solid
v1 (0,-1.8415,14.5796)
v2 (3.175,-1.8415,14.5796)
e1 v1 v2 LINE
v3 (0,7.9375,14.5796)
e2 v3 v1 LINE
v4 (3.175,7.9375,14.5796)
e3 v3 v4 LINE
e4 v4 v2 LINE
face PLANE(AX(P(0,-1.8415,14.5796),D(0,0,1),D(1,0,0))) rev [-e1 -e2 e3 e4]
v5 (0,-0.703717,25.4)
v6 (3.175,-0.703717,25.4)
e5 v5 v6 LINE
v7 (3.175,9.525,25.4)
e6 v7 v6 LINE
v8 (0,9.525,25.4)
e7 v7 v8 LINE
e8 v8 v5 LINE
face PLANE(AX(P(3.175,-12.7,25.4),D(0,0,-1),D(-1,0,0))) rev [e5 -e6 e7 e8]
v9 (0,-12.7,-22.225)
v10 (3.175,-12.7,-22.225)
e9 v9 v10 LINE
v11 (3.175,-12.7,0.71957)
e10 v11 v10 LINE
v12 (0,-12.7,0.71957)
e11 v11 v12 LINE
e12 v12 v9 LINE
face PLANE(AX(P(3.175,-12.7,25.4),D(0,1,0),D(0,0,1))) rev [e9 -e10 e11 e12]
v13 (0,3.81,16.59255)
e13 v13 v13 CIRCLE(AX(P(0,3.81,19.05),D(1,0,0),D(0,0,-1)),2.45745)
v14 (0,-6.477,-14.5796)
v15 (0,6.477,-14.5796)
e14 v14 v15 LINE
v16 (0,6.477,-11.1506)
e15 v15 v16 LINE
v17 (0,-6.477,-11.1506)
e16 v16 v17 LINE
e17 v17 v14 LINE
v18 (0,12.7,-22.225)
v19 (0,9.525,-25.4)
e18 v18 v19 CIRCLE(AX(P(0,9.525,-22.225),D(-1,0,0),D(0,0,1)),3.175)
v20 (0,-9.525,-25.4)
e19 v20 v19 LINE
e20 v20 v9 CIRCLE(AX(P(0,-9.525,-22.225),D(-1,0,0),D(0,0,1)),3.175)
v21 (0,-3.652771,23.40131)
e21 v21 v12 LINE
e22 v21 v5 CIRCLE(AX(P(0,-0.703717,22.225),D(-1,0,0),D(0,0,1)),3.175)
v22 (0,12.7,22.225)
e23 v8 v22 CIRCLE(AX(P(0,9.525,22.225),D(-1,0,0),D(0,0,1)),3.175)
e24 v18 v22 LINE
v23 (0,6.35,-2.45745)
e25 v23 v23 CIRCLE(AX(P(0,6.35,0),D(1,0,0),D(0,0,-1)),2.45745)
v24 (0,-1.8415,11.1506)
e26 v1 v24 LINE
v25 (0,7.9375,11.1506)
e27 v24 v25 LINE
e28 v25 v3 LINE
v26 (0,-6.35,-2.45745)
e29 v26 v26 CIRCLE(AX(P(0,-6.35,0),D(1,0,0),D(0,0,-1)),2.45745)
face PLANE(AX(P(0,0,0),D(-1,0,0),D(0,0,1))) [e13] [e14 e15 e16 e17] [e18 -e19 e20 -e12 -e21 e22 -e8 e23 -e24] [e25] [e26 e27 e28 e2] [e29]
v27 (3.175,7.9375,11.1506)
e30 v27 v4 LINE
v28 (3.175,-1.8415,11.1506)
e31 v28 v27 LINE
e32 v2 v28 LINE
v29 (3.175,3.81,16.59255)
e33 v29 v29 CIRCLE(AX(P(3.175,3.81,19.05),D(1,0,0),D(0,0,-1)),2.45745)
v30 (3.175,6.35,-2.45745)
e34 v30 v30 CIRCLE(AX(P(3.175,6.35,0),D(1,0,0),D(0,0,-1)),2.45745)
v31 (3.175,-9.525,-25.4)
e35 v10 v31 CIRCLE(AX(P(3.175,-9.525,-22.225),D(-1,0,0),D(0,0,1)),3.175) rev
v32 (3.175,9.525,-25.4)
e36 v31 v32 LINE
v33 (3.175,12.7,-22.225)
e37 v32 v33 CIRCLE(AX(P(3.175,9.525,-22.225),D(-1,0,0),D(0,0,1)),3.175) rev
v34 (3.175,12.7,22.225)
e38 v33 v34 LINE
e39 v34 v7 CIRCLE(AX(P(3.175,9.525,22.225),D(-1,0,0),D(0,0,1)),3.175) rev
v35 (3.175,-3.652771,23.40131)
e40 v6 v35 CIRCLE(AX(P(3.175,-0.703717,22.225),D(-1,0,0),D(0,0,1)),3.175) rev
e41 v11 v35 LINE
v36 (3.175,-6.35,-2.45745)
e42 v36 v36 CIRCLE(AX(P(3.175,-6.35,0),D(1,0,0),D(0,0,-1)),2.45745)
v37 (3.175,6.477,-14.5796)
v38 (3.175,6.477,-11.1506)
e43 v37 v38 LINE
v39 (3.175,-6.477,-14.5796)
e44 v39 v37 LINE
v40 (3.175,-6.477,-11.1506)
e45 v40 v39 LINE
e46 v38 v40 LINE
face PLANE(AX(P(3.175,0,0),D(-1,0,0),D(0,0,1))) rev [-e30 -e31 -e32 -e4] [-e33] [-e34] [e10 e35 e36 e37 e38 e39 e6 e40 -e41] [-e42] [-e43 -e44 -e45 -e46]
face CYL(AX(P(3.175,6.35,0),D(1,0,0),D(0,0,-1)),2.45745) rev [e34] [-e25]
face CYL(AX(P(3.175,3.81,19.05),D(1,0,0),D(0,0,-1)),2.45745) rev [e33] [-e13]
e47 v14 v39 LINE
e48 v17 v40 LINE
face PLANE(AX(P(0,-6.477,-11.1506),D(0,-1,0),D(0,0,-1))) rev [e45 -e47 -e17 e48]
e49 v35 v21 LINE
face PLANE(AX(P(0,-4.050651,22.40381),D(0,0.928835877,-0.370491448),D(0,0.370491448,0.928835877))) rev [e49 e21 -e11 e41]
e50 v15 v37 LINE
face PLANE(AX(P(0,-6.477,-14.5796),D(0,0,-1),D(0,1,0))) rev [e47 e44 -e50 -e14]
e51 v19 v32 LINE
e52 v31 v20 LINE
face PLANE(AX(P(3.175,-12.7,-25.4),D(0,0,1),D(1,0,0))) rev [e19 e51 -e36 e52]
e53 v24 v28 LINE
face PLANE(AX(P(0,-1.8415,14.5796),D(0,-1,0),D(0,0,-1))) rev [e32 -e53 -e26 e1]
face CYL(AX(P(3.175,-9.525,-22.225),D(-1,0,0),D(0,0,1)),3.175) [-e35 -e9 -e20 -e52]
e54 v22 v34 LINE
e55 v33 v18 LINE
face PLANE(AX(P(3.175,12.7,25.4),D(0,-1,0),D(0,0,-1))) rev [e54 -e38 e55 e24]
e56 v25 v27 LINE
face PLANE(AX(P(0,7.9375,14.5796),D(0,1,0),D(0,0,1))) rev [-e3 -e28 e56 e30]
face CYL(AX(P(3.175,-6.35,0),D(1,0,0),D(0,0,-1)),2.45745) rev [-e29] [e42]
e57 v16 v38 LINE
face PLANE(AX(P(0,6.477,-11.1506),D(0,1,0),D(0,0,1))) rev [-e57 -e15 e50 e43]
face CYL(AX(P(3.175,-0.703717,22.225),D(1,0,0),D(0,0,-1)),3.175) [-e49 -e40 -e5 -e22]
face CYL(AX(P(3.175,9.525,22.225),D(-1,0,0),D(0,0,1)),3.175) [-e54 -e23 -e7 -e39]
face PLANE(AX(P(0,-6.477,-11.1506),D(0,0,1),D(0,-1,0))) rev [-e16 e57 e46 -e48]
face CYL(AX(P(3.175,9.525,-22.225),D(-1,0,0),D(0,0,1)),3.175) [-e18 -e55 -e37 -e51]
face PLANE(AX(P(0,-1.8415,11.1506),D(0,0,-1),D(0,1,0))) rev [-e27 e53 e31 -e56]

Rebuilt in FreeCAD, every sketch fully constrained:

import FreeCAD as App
import Part
import Sketcher
from FreeCAD import Vector
Q = App.Units.Quantity


def edges_at(feature, points):
    """Names of the edges that pass closest to the given points."""
    edges = feature.Shape.Edges
    near = lambda p: min(range(len(edges)), key=lambda i: edges[i].distToShape(Part.Vertex(*p))[0])
    return sorted({f"Edge{near(p) + 1}" for p in points})

doc = App.newDocument("Part")
params = doc.addObject("Spreadsheet::Sheet", "Params")
for row, (alias, value) in enumerate([
    ("sketch1_width", "1 in"),
    ("sketch1_height", "2 in"),
    ("pad1_length", "0.125 in"),
    ("fillet_radius", "0.125 in"),
    ("sketch3_width", "0.51 in"),
    ("sketch3_width2", "0.385 in"),
    ("sketch3_height", "0.135 in"),
    ("hole_diameter", "0.1935 in"),
], start=1):
    params.set(f"A{row}", alias)
    params.set(f"B{row}", "=" + value)
    params.setAlias(f"B{row}", alias)

body = doc.addObject("PartDesign::Body", "Body")

sketch1 = body.newObject("Sketcher::SketchObject", "Sketch")
sketch1.AttachmentSupport = (doc.getObject("YZ_Plane"), [""])
sketch1.MapMode = "FlatFace"
sketch1.addGeometry([
    Part.LineSegment(Vector(13, 25, 0), Vector(-13, 25, 0)),
    Part.LineSegment(Vector(-13, 25, 0), Vector(-13, -25, 0)),
    Part.LineSegment(Vector(-13, -25, 0), Vector(13, -25, 0)),
    Part.LineSegment(Vector(13, -25, 0), Vector(13, 25, 0)),
], False)
sketch1.addConstraint([
    Sketcher.Constraint("Coincident", 0, 2, 1, 1),
    Sketcher.Constraint("Coincident", 1, 2, 2, 1),
    Sketcher.Constraint("Coincident", 2, 2, 3, 1),
    Sketcher.Constraint("Coincident", 3, 2, 0, 1),
    Sketcher.Constraint("Horizontal", 0),
    Sketcher.Constraint("Vertical", 1),
    Sketcher.Constraint("Horizontal", 2),
    Sketcher.Constraint("Vertical", 3),
    Sketcher.Constraint("Symmetric", 0, 2, 2, 2, -1, 1),
    Sketcher.Constraint("DistanceX", 0, 2, 0, 1, Q("1 in")),
    Sketcher.Constraint("DistanceY", 1, 2, 1, 1, Q("2 in")),
])
sketch1.setExpression("Constraints[9]", "Params.sketch1_width")
sketch1.setExpression("Constraints[10]", "Params.sketch1_height")
pad1 = body.newObject("PartDesign::Pad", "Pad")
pad1.Profile = sketch1
pad1.setExpression("Length", "Params.pad1_length")

sketch2 = body.newObject("Sketcher::SketchObject", "Sketch001")
sketch2.AttachmentSupport = (doc.getObject("YZ_Plane"), [""])
sketch2.MapMode = "FlatFace"
sketch2.AttachmentOffset = App.Placement(Vector(0, 0, 0.125 * 25.4), App.Rotation())
sketch2.addGeometry([
    Part.LineSegment(Vector(-13, 25, 0), Vector(-13, 0, 0)),
    Part.LineSegment(Vector(-13, 0, 0), Vector(-4, 22, 0)),
    Part.LineSegment(Vector(-4, 22, 0), Vector(6, 47, 0)),
    Part.LineSegment(Vector(6, 47, 0), Vector(-13, 47, 0)),
    Part.LineSegment(Vector(-13, 47, 0), Vector(-13, 25, 0)),
], False)
sketch2.addConstraint([
    Sketcher.Constraint("Coincident", 0, 2, 1, 1),
    Sketcher.Constraint("Coincident", 1, 2, 2, 1),
    Sketcher.Constraint("Coincident", 2, 2, 3, 1),
    Sketcher.Constraint("Coincident", 3, 2, 4, 1),
    Sketcher.Constraint("Coincident", 4, 2, 0, 1),
    Sketcher.Constraint("Horizontal", 3),
    Sketcher.Constraint("Vertical", 4),
    Sketcher.Constraint("PointOnObject", 0, 2, -1),
    Sketcher.Constraint("Parallel", 1, 2),
    Sketcher.Constraint("DistanceY", -1, 1, 4, 2, Q("1 in")),
    Sketcher.Constraint("DistanceX", 3, 2, -1, 1, Q("0.5 in")),
    Sketcher.Constraint("DistanceX", 0, 2, -1, 1, Q("0.5113 in")),
    Sketcher.Constraint("DistanceY", 4, 2, 4, 1, 21.452381),
    Sketcher.Constraint("Distance", 1, 24.120311),
    Sketcher.Constraint("DistanceX", 3, 2, 3, 1, 18.401326),
])
pocket1 = body.newObject("PartDesign::Pocket", "Pocket")
pocket1.Profile = sketch2
pocket1.Type = "ThroughAll"
doc.recompute()

fillet = body.newObject("PartDesign::Fillet", "Fillet")
fillet.Base = (pocket1, edges_at(pocket1, [
    (1.587, -2.856, 25.4),
    (1.587, 12.7, 25.4),
    (1.587, 12.7, -25.4),
    (1.587, -12.7, -25.4),
]))
fillet.setExpression("Radius", "Params.fillet_radius")

sketch3 = body.newObject("Sketcher::SketchObject", "Sketch002")
sketch3.AttachmentSupport = (doc.getObject("YZ_Plane"), [""])
sketch3.MapMode = "FlatFace"
sketch3.AttachmentOffset = App.Placement(Vector(0, 0, 0.125 * 25.4), App.Rotation())
sketch3.addGeometry([
    Part.LineSegment(Vector(7.9, 14.6, 0), Vector(-1.8, 14.6, 0)),
    Part.LineSegment(Vector(-1.8, 14.6, 0), Vector(-1.8, 11.2, 0)),
    Part.LineSegment(Vector(-1.8, 11.2, 0), Vector(7.9, 11.2, 0)),
    Part.LineSegment(Vector(7.9, 11.2, 0), Vector(7.9, 14.6, 0)),
    Part.LineSegment(Vector(6.5, -11.2, 0), Vector(-6.5, -11.2, 0)),
    Part.LineSegment(Vector(-6.5, -11.2, 0), Vector(-6.5, -14.6, 0)),
    Part.LineSegment(Vector(-6.5, -14.6, 0), Vector(6.5, -14.6, 0)),
    Part.LineSegment(Vector(6.5, -14.6, 0), Vector(6.5, -11.2, 0)),
], False)
sketch3.addConstraint([
    Sketcher.Constraint("Coincident", 0, 2, 1, 1),
    Sketcher.Constraint("Coincident", 1, 2, 2, 1),
    Sketcher.Constraint("Coincident", 2, 2, 3, 1),
    Sketcher.Constraint("Coincident", 3, 2, 0, 1),
    Sketcher.Constraint("Coincident", 4, 2, 5, 1),
    Sketcher.Constraint("Coincident", 5, 2, 6, 1),
    Sketcher.Constraint("Coincident", 6, 2, 7, 1),
    Sketcher.Constraint("Coincident", 7, 2, 4, 1),
    Sketcher.Constraint("Horizontal", 0),
    Sketcher.Constraint("Vertical", 1),
    Sketcher.Constraint("Horizontal", 2),
    Sketcher.Constraint("Vertical", 3),
    Sketcher.Constraint("Horizontal", 4),
    Sketcher.Constraint("Vertical", 5),
    Sketcher.Constraint("Horizontal", 6),
    Sketcher.Constraint("Vertical", 7),
    Sketcher.Constraint("Equal", 3, 5),
    Sketcher.Constraint("DistanceX", 4, 2, 4, 1, Q("0.51 in")),
    Sketcher.Constraint("DistanceX", 0, 2, 0, 1, Q("0.385 in")),
    Sketcher.Constraint("DistanceY", 1, 2, 1, 1, Q("0.135 in")),
    Sketcher.Constraint("DistanceY", -1, 1, 0, 2, Q("0.574 in")),
    Sketcher.Constraint("DistanceX", -1, 1, 2, 2, Q("0.3125 in")),
    Sketcher.Constraint("DistanceX", 4, 2, -1, 1, Q("0.255 in")),
    Sketcher.Constraint("DistanceY", 4, 2, -1, 1, Q("0.439 in")),
])
sketch3.setExpression("Constraints[17]", "Params.sketch3_width")
sketch3.setExpression("Constraints[18]", "Params.sketch3_width2")
sketch3.setExpression("Constraints[19]", "Params.sketch3_height")
pocket2 = body.newObject("PartDesign::Pocket", "Pocket001")
pocket2.Profile = sketch3
pocket2.Type = "ThroughAll"

sketch4 = body.newObject("Sketcher::SketchObject", "Sketch003")
sketch4.AttachmentSupport = (doc.getObject("YZ_Plane"), [""])
sketch4.MapMode = "FlatFace"
sketch4.AttachmentOffset = App.Placement(Vector(0, 0, 0.125 * 25.4), App.Rotation())
sketch4.addGeometry([
    Part.Circle(Vector(3.8, 19.1, 0), Vector(0, 0, 1), 2.5),
    Part.Circle(Vector(-6.3, 0, 0), Vector(0, 0, 1), 2.5),
    Part.Circle(Vector(6.3, 0, 0), Vector(0, 0, 1), 2.5),
], False)
sketch4.addConstraint([
    Sketcher.Constraint("Equal", 0, 1),
    Sketcher.Constraint("Equal", 1, 2),
    Sketcher.Constraint("Symmetric", 1, 3, 2, 3, -1, 1),
    Sketcher.Constraint("PointOnObject", 1, 3, -1),
    Sketcher.Constraint("Diameter", 0, Q("0.1935 in")),
    Sketcher.Constraint("DistanceX", 1, 3, 0, 3, Q("0.4 in")),
    Sketcher.Constraint("DistanceX", 1, 3, 2, 3, Q("0.5 in")),
    Sketcher.Constraint("DistanceY", -1, 1, 0, 3, Q("0.75 in")),
])
doc.recompute()
hole = body.newObject("PartDesign::Hole", "Hole")
hole.Profile = sketch4
hole.ThreadType = "None"
hole.setExpression("Diameter", "Params.hole_diameter")
hole.DepthType = "ThroughAll"

doc.recompute()
